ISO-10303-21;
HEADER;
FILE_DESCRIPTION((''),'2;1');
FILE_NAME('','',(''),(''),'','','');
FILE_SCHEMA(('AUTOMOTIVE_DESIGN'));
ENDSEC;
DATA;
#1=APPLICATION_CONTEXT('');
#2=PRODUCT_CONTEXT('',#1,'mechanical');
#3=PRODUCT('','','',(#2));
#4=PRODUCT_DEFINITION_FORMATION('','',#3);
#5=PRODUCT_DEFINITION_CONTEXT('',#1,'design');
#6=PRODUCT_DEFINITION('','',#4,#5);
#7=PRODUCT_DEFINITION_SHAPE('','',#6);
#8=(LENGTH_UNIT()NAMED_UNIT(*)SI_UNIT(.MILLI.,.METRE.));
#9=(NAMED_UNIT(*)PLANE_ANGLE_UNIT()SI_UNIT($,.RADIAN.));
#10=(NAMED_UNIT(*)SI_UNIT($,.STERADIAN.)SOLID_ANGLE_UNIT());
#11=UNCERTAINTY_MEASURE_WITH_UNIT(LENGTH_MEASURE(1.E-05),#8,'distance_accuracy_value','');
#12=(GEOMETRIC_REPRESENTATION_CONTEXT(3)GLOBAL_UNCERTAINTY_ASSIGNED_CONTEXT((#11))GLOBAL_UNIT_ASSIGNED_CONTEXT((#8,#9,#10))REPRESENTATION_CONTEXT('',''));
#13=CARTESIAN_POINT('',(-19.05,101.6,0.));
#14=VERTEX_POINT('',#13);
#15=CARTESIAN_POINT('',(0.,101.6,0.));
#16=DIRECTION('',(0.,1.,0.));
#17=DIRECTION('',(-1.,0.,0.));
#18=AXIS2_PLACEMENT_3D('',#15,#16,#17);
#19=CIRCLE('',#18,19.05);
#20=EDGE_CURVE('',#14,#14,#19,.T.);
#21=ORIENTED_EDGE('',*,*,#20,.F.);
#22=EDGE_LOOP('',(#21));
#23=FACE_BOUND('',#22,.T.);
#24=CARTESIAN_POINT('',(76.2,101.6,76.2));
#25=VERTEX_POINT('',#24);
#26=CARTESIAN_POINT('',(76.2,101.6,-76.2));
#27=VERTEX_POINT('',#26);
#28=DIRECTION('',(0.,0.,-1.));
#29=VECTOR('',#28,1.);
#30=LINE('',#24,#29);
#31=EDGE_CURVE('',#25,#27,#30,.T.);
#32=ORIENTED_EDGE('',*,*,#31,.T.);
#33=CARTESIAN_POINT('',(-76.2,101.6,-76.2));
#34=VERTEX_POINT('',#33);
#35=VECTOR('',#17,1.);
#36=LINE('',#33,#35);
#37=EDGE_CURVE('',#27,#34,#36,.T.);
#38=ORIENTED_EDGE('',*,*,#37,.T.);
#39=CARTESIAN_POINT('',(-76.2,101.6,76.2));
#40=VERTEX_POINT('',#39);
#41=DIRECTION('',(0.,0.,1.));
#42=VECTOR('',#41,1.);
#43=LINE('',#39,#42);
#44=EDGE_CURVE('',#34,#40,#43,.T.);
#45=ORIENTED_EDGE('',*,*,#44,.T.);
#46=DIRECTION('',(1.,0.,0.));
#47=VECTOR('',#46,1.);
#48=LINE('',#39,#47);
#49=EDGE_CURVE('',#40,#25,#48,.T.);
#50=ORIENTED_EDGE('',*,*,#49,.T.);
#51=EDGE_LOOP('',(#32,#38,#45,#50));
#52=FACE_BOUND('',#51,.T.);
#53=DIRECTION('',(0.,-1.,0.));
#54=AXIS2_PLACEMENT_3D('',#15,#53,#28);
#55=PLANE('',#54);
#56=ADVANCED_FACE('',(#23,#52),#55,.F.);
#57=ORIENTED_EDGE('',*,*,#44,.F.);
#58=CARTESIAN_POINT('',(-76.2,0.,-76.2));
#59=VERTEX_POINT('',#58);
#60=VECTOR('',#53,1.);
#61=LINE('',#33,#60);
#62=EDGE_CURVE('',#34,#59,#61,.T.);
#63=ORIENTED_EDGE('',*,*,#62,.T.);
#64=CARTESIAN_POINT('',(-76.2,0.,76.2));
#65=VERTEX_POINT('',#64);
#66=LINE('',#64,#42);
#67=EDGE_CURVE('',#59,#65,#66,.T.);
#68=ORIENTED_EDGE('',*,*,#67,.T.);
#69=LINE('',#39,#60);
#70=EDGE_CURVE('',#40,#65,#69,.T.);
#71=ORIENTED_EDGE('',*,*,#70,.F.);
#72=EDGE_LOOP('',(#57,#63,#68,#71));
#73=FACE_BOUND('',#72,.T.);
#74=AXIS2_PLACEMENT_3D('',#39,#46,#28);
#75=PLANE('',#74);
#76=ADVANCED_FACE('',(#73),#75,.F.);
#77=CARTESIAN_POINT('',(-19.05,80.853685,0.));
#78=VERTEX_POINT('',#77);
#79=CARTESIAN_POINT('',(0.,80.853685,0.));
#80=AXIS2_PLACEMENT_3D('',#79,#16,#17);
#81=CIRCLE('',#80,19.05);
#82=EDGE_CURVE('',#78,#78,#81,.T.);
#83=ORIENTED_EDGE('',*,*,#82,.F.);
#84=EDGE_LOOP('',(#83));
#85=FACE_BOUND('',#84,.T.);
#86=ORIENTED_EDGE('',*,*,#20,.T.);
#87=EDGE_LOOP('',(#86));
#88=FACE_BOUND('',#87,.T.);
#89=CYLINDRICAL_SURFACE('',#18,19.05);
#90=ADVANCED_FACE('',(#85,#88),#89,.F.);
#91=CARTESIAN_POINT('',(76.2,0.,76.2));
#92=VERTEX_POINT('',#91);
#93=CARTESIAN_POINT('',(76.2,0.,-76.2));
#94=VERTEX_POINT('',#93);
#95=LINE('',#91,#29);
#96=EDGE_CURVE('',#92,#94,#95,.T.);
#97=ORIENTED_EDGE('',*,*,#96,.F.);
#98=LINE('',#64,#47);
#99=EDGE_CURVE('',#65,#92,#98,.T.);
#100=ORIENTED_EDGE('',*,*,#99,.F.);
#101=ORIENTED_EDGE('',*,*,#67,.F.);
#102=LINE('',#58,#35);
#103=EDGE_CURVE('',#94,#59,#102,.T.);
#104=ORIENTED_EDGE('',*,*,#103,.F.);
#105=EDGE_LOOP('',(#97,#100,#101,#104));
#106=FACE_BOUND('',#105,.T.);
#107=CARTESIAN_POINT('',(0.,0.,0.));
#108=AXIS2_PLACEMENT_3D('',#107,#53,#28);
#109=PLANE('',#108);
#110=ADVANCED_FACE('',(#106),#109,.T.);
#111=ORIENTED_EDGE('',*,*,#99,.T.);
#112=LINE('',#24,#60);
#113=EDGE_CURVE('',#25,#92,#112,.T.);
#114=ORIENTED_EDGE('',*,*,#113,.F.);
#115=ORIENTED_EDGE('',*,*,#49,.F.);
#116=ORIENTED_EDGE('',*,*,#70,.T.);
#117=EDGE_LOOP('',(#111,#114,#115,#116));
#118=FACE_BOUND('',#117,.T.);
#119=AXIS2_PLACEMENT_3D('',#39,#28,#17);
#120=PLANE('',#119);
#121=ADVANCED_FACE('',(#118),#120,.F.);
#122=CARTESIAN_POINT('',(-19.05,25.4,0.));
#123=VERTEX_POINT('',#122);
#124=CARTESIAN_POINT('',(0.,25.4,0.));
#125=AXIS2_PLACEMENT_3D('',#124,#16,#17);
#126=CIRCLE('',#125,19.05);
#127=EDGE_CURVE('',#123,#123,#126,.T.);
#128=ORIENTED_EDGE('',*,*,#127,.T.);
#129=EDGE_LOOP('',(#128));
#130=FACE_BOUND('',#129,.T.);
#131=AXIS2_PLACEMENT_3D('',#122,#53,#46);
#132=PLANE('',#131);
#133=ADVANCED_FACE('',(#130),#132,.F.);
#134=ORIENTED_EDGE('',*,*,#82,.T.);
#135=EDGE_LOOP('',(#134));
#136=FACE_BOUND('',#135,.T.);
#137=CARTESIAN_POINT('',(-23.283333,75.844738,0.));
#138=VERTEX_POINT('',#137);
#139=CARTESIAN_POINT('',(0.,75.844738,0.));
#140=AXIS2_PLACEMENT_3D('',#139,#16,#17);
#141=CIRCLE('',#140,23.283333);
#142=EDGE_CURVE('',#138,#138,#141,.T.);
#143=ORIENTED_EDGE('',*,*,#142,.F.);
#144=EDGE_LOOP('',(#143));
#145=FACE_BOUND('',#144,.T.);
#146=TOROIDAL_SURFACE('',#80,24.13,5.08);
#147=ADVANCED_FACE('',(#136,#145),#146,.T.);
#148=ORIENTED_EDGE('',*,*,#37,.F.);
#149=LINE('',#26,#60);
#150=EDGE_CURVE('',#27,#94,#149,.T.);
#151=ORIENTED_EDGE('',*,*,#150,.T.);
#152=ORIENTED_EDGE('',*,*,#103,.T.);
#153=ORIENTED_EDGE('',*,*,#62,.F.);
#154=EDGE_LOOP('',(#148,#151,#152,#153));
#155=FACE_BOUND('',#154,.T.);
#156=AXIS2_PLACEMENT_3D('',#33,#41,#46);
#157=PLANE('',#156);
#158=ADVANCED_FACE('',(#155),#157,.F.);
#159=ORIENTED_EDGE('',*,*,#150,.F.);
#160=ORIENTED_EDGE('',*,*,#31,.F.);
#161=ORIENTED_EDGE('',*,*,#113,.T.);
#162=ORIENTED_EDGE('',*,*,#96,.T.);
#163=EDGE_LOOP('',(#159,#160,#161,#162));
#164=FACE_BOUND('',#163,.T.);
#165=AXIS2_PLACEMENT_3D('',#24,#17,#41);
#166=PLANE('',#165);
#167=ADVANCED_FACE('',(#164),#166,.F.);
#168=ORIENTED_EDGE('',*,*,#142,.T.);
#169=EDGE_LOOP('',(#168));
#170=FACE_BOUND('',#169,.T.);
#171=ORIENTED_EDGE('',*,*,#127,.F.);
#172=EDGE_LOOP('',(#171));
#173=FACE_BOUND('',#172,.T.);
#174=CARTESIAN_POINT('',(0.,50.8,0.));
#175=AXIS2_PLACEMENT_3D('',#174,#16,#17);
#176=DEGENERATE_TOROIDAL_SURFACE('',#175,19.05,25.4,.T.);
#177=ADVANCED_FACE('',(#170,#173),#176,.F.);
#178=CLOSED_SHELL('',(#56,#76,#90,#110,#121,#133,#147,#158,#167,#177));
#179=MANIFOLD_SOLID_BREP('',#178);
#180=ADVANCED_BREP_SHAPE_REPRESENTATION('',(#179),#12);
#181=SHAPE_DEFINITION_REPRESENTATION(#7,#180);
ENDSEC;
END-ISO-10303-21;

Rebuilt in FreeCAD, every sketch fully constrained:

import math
import FreeCAD as App
import Part
import Sketcher
Q = App.Units.Quantity

doc = App.newDocument("Part")
body = doc.addObject("PartDesign::Body", "Body")

# Sketch on XZ plane
sketch1 = body.newObject("Sketcher::SketchObject", "Sketch")
sketch1.AttachmentSupport = (doc.getObject("XZ_Plane"), [""])
sketch1.MapMode = "FlatFace"
sketch1.addGeometry([
    Part.LineSegment(App.Vector(-76, -76, 0), App.Vector(-76, 76, 0)),
    Part.LineSegment(App.Vector(-76, 76, 0), App.Vector(76, 76, 0)),
    Part.LineSegment(App.Vector(76, 76, 0), App.Vector(76, -76, 0)),
    Part.LineSegment(App.Vector(76, -76, 0), App.Vector(-76, -76, 0)),
], False)
sketch1.addConstraint([
    Sketcher.Constraint("Coincident", 0, 2, 1, 1),
    Sketcher.Constraint("Coincident", 1, 2, 2, 1),
    Sketcher.Constraint("Coincident", 2, 2, 3, 1),
    Sketcher.Constraint("Coincident", 3, 2, 0, 1),
    Sketcher.Constraint("Vertical", 0),
    Sketcher.Constraint("Horizontal", 1),
    Sketcher.Constraint("Vertical", 2),
    Sketcher.Constraint("Horizontal", 3),
    Sketcher.Constraint("Symmetric", 0, 2, 2, 2, -1, 1),
    Sketcher.Constraint("Equal", 3, 0),
    Sketcher.Constraint("DistanceX", 1, 1, 1, 2, Q("6 in")),
])
pad1 = body.newObject("PartDesign::Pad", "Pad")
pad1.Profile = sketch1
pad1.Length = Q("4 in")
pad1.Reversed = True

# Sketch on XY plane
sketch2 = body.newObject("Sketcher::SketchObject", "Sketch001")
sketch2.AttachmentSupport = (doc.getObject("XY_Plane"), [""])
sketch2.MapMode = "FlatFace"
sketch2.addGeometry([
    Part.LineSegment(App.Vector(-19, 102, 0), App.Vector(-19, 81, 0)),  # 0
    Part.ArcOfCircle(Part.Circle(App.Vector(-24, 81, 0), App.Vector(0, 0, 1), 5), math.radians(-80), math.radians(0)),  # 1
    Part.ArcOfCircle(Part.Circle(App.Vector(-19, 51, 0), App.Vector(0, 0, 1), 25), math.radians(100), math.radians(270)),  # 2
    Part.LineSegment(App.Vector(-19, 25, 0), App.Vector(0, 25, 0)),  # 3
    Part.LineSegment(App.Vector(0, 25, 0), App.Vector(0, 102, 0)),  # 4
    Part.LineSegment(App.Vector(0, 102, 0), App.Vector(-19, 102, 0)),  # 5
], False)
sketch2.addConstraint([
    Sketcher.Constraint("Tangent", 0, 2, 1, 2),
    Sketcher.Constraint("Tangent", 1, 1, 2, 1),
    Sketcher.Constraint("Tangent", 2, 2, 3, 1),
    Sketcher.Constraint("Coincident", 3, 2, 4, 1),
    Sketcher.Constraint("Coincident", 4, 2, 5, 1),
    Sketcher.Constraint("Coincident", 5, 2, 0, 1),
    Sketcher.Constraint("Vertical", 0),
    Sketcher.Constraint("Horizontal", 3),
    Sketcher.Constraint("Vertical", 4),
    Sketcher.Constraint("Horizontal", 5),
    Sketcher.Constraint("PointOnObject", 3, 2, -2),
    Sketcher.Constraint("Vertical", 2, 3, 0, 2),
    Sketcher.Constraint("Radius", 2, Q("1 in")),
    Sketcher.Constraint("Radius", 1, Q("0.2 in")),
    Sketcher.Constraint("DistanceY", 4, 1, 4, 2, Q("3 in")),
    Sketcher.Constraint("DistanceY", -1, 1, 2, 3, Q("2 in")),
    Sketcher.Constraint("DistanceX", 3, 1, 3, 2, Q("0.75 in")),
])
groove = body.newObject("PartDesign::Groove", "Groove")
groove.Profile = sketch2
groove.ReferenceAxis = (sketch2, ["V_Axis"])
groove.Angle = 360

doc.recompute()
